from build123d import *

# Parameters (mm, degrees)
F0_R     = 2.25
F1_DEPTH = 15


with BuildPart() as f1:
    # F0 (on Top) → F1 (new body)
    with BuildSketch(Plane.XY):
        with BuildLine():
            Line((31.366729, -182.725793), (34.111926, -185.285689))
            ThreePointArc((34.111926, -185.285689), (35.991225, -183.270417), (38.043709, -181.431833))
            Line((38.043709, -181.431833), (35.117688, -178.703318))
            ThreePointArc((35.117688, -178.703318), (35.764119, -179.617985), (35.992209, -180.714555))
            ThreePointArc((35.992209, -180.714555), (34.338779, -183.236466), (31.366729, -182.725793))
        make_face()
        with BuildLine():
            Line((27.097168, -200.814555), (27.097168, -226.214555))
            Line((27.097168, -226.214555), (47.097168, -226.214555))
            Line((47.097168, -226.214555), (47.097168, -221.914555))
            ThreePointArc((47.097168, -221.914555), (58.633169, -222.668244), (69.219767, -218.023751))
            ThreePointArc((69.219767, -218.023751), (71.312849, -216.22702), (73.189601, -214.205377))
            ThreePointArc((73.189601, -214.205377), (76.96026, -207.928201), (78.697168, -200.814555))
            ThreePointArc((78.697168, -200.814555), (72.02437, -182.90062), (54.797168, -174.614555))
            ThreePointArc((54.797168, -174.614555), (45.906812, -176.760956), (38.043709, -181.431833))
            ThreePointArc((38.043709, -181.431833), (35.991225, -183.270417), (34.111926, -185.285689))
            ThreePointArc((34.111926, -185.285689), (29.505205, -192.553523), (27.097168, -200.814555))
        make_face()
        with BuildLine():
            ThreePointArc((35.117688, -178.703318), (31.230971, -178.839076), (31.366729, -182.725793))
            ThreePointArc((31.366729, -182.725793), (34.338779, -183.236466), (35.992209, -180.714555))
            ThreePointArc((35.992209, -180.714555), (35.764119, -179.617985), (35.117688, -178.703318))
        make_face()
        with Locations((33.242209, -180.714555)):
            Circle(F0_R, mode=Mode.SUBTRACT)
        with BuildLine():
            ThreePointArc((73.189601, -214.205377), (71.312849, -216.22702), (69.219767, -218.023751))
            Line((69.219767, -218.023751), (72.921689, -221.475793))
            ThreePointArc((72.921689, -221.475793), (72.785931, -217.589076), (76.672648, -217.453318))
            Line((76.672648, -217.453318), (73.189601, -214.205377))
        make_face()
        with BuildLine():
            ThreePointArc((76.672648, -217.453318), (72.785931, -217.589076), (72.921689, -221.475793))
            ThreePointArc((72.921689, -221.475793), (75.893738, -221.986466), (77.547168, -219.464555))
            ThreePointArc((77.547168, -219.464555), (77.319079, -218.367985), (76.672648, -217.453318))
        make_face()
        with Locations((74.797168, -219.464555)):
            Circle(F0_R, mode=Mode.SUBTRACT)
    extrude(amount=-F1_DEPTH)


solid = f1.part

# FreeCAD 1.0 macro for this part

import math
import FreeCAD as App
import Part
import Sketcher
Q = App.Units.Quantity

doc = App.newDocument("Part")
body = doc.addObject("PartDesign::Body", "Body")

sketch1 = doc.addObject("Sketcher::SketchObject", "Sketch")
body.addObject(sketch1)
sketch1.AttachmentSupport = (doc.XY_Plane, [""])
sketch1.MapMode = "FlatFace"
sketch1.addGeometry([
    Part.LineSegment(App.Vector(31.4, -182.7, 0), App.Vector(34.1, -185.3, 0)),
    Part.ArcOfCircle(Part.Circle(App.Vector(57.5, -205.2, 0), App.Vector(0, 0, 1), 30.7), math.radians(140), math.radians(172)),
    Part.LineSegment(App.Vector(27.1, -200.8, 0), App.Vector(27.1, -226.2, 0)),
    Part.LineSegment(App.Vector(27.1, -226.2, 0), App.Vector(47.1, -226.2, 0)),
    Part.LineSegment(App.Vector(47.1, -226.2, 0), App.Vector(47.1, -221.9, 0)),
    Part.ArcOfCircle(Part.Circle(App.Vector(54.4, -198.7, 0), App.Vector(0, 0, 1), 24.4), math.radians(-107), math.radians(-53)),
    Part.LineSegment(App.Vector(69.2, -218, 0), App.Vector(72.9, -221.5, 0)),
    Part.ArcOfCircle(Part.Circle(App.Vector(74.8, -219.5, 0), App.Vector(0, 0, 1), 2.7), math.radians(-133), math.radians(0)),
    Part.ArcOfCircle(Part.Circle(App.Vector(74.8, -219.5, 0), App.Vector(0, 0, 1), 2.7), math.radians(0), math.radians(47)),
    Part.LineSegment(App.Vector(76.7, -217.5, 0), App.Vector(73.2, -214.2, 0)),
    Part.ArcOfCircle(Part.Circle(App.Vector(54.4, -198.7, 0), App.Vector(0, 0, 1), 24.4), math.radians(-40), math.radians(-5)),
    Part.ArcOfCircle(Part.Circle(App.Vector(53.1, -200.1, 0), App.Vector(0, 0, 1), 25.6), math.radians(-2), math.radians(86)),
    Part.ArcOfCircle(Part.Circle(App.Vector(57.5, -205.2, 0), App.Vector(0, 0, 1), 30.7), math.radians(95), math.radians(129)),
    Part.LineSegment(App.Vector(38, -181.4, 0), App.Vector(35.1, -178.7, 0)),
    Part.ArcOfCircle(Part.Circle(App.Vector(33.2, -180.7, 0), App.Vector(0, 0, 1), 2.7), math.radians(47), math.radians(227)),
    Part.Circle(App.Vector(74.8, -219.5, 0), App.Vector(0, 0, 1), 2.2),
    Part.Circle(App.Vector(33.2, -180.7, 0), App.Vector(0, 0, 1), 2.2),
], False)
sketch1.addConstraint([
    Sketcher.Constraint("Coincident", 0, 2, 1, 1),
    Sketcher.Constraint("Coincident", 1, 2, 2, 1),
    Sketcher.Constraint("Coincident", 2, 2, 3, 1),
    Sketcher.Constraint("Coincident", 3, 2, 4, 1),
    Sketcher.Constraint("Coincident", 4, 2, 5, 1),
    Sketcher.Constraint("Coincident", 5, 2, 6, 1),
    Sketcher.Constraint("Tangent", 6, 2, 7, 1),
    Sketcher.Constraint("Tangent", 7, 2, 8, 1),
    Sketcher.Constraint("Tangent", 8, 2, 9, 1),
    Sketcher.Constraint("Coincident", 9, 2, 10, 1),
    Sketcher.Constraint("Coincident", 10, 2, 11, 1),
    Sketcher.Constraint("Coincident", 11, 2, 12, 1),
    Sketcher.Constraint("Coincident", 12, 2, 13, 1),
    Sketcher.Constraint("Tangent", 13, 2, 14, 1),
    Sketcher.Constraint("Tangent", 14, 2, 0, 1),
    Sketcher.Constraint("Vertical", 2),
    Sketcher.Constraint("Horizontal", 3),
    Sketcher.Constraint("Vertical", 4),
    Sketcher.Constraint("Coincident", 10, 3, 5, 3),
    Sketcher.Constraint("Coincident", 12, 3, 1, 3),
    Sketcher.Constraint("Coincident", 15, 3, 7, 3),
    Sketcher.Constraint("Coincident", 16, 3, 14, 3),
    Sketcher.Constraint("Equal", 1, 12),
    Sketcher.Constraint("Equal", 7, 14),
    Sketcher.Constraint("Equal", 15, 16),
    Sketcher.Constraint("Parallel", 0, 6),
    Sketcher.Constraint("Parallel", 6, 9),
    Sketcher.Constraint("Parallel", 9, 13),
    Sketcher.Constraint("Horizontal", 15, 3, 7, 2),
    Sketcher.Constraint("Horizontal", 1, 2, 10, 2),
    Sketcher.Constraint("Diameter", 15, Q("4.5 mm")),
    Sketcher.Constraint("DistanceX", 3, 1, 3, 2, Q("20 mm")),
    Sketcher.Constraint("Radius", 7, Q("2.75 mm")),
    Sketcher.Constraint("DistanceY", 2, 2, 2, 1, Q("25.4 mm")),
    Sketcher.Constraint("DistanceY", 4, 1, 4, 2, Q("4.3 mm")),
    Sketcher.Constraint("DistanceY", 1, 2, 14, 3, Q("20.099999 mm")),
    Sketcher.Constraint("DistanceX", 3, 2, 15, 3, Q("27.7 mm")),
    Sketcher.Constraint("DistanceX", 15, 3, 10, 2, Q("3.9 mm")),
    Sketcher.Constraint("DistanceY", 16, 3, 11, 2, Q("6.1 mm")),
    Sketcher.Constraint("Radius", 1, Q("30.690208 mm")),
    Sketcher.Constraint("DistanceY", 3, 2, 15, 3, Q("6.75 mm")),
    Sketcher.Constraint("Radius", 5, Q("24.383605 mm")),
    Sketcher.Constraint("Radius", 8, Q("2.749998 mm")),
    Sketcher.Constraint("Radius", 10, Q("24.383613 mm")),
    Sketcher.Constraint("Radius", 11, Q("25.579866 mm")),
    Sketcher.Constraint("DistanceY", 12, 3, 11, 3, Q("5.048 mm")),
    Sketcher.Constraint("Distance", 6, Q("5.061701 mm")),
    Sketcher.Constraint("Distance", 13, Q("4.000799 mm")),
    Sketcher.Constraint("DistanceX", -1, 1, 9, 2, Q("73.189601 mm")),
    Sketcher.Constraint("DistanceY", 1, 3, -1, 1, Q("205.187781 mm")),
])
pad1 = doc.addObject("PartDesign::Pad", "Pad")
body.addObject(pad1)
pad1.Profile = sketch1
pad1.Length = 15
pad1.Reversed = True

doc.recompute()
